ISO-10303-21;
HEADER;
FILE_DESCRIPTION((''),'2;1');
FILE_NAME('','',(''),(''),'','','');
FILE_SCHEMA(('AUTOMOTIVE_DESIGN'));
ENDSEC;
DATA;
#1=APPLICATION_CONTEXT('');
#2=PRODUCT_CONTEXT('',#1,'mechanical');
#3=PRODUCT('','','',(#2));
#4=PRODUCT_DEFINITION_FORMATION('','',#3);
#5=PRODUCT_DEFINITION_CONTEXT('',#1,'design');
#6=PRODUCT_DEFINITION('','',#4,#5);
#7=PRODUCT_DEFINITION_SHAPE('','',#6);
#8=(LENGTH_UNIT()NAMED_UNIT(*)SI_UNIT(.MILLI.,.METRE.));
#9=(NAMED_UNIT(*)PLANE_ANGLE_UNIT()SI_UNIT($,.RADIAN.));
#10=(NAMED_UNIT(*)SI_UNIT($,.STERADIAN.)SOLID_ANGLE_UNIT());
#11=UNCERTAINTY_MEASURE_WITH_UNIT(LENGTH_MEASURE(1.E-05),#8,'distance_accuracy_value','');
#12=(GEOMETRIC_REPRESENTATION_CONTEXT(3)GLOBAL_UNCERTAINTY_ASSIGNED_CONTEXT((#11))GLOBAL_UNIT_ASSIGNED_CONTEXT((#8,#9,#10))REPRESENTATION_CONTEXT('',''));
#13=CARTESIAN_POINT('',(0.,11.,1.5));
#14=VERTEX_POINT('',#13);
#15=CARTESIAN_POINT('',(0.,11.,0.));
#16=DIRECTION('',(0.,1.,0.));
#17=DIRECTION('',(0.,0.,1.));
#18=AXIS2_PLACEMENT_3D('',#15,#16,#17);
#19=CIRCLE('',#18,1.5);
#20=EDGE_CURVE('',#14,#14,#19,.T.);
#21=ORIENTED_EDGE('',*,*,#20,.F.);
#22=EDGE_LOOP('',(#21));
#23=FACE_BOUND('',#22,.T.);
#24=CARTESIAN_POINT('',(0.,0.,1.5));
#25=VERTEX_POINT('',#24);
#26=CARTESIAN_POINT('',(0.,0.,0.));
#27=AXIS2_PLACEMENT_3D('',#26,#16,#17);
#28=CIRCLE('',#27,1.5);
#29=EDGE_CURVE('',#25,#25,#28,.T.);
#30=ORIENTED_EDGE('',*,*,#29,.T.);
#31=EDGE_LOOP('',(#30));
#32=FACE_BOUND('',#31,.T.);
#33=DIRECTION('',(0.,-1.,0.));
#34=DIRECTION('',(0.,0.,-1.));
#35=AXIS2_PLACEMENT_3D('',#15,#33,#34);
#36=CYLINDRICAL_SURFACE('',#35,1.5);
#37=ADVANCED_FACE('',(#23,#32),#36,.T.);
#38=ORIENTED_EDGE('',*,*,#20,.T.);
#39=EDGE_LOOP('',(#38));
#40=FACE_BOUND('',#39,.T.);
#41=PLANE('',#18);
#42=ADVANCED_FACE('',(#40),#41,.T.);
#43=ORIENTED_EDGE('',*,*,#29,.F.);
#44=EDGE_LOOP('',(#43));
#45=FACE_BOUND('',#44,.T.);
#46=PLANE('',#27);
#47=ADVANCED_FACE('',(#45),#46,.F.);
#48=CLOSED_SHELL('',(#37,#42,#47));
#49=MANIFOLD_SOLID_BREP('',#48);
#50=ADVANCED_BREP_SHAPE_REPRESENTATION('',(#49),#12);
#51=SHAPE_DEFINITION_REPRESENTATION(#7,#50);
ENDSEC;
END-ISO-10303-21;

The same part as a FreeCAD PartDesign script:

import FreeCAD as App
import Part
import Sketcher
Q = App.Units.Quantity

doc = App.newDocument("Part")
params = doc.addObject("Spreadsheet::Sheet", "Params")
for row, (alias, value) in enumerate([
    ("sketch1_diameter", "3 mm"),
    ("pad1_length", "11 mm"),
], start=1):
    params.set(f"A{row}", alias)
    params.set(f"B{row}", "=" + value)
    params.setAlias(f"B{row}", alias)

body = doc.addObject("PartDesign::Body", "Body")

sketch1 = body.newObject("Sketcher::SketchObject", "Sketch")
sketch1.AttachmentSupport = (doc.getObject("XZ_Plane"), [""])
sketch1.MapMode = "FlatFace"
sketch1.addGeometry(Part.Circle(App.Vector(0, 0, 0), App.Vector(0, 0, 1), 1.5), False)
sketch1.addConstraint([
    Sketcher.Constraint("Coincident", 0, 3, -1, 1),
    Sketcher.Constraint("Diameter", 0, Q("3 mm")),
])
sketch1.setExpression("Constraints[1]", "Params.sketch1_diameter")
pad1 = body.newObject("PartDesign::Pad", "Pad")
pad1.Profile = sketch1
pad1.setExpression("Length", "Params.pad1_length")
pad1.Reversed = True

doc.recompute()
